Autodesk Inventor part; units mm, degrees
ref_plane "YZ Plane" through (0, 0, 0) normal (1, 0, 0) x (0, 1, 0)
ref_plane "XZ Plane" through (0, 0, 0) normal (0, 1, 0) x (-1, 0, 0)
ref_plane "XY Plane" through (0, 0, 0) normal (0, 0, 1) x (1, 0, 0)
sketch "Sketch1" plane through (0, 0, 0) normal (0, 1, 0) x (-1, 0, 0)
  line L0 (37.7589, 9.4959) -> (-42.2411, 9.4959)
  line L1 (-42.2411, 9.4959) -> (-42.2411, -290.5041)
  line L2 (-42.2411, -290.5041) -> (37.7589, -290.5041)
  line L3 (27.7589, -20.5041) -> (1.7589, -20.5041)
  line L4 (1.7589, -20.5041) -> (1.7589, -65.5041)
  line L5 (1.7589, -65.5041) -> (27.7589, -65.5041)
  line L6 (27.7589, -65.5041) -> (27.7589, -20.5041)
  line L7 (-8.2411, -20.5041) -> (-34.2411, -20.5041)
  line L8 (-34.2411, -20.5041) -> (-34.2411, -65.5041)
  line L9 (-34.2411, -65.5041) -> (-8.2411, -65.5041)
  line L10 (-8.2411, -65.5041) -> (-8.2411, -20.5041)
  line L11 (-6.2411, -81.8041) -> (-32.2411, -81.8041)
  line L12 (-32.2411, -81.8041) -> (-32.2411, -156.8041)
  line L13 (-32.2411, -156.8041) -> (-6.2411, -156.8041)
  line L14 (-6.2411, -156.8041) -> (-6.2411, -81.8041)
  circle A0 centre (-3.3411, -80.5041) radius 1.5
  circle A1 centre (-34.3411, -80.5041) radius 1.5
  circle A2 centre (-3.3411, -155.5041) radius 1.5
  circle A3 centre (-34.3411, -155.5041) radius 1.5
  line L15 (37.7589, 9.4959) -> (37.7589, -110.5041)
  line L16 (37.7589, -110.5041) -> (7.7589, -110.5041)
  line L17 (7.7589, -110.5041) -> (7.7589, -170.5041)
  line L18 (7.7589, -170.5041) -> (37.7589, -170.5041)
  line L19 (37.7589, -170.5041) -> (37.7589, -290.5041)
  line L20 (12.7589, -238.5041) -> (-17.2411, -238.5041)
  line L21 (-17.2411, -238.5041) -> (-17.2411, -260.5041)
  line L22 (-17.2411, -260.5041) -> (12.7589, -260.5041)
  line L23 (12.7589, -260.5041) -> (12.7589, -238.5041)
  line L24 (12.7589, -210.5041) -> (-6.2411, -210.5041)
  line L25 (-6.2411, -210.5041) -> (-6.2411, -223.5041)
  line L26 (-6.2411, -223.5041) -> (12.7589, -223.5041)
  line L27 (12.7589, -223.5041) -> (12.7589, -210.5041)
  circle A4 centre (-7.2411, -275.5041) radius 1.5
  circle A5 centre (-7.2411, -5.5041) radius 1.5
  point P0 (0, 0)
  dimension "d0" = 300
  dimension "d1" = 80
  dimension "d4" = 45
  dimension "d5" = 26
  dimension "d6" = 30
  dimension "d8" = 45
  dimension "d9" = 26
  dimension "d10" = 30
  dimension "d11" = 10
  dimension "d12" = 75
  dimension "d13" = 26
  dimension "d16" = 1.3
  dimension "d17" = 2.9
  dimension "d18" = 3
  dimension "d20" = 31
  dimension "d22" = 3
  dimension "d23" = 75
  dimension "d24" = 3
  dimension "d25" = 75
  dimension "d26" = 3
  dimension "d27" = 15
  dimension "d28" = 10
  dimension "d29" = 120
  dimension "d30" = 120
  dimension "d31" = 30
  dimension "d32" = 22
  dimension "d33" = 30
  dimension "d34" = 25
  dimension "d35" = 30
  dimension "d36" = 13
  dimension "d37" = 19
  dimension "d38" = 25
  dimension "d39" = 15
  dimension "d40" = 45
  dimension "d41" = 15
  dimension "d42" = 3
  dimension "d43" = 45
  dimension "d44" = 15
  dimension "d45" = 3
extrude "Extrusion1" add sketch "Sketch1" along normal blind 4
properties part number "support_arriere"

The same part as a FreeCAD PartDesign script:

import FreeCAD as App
import Part
import Sketcher

doc = App.newDocument("Part")
params = doc.addObject("Spreadsheet::Sheet", "Params")
for row, (alias, value) in enumerate([
    ("sketch1_diameter", "3 mm"),
    ("sketch1_width", "80 mm"),
    ("sketch1_width2", "30 mm"),
    ("sketch1_width3", "19 mm"),
    ("sketch1_width4", "26 mm"),
    ("pad1_length", "4 mm"),
], start=1):
    params.set(f"A{row}", alias)
    params.set(f"B{row}", "=" + value)
    params.setAlias(f"B{row}", alias)

body = doc.addObject("PartDesign::Body", "Body")

# Sketch on XZ plane
sketch1 = body.newObject("Sketcher::SketchObject", "Sketch")
sketch1.AttachmentSupport = (doc.getObject("XZ_Plane"), [""])
sketch1.MapMode = "FlatFace"
sketch1.addGeometry([
    Part.LineSegment(App.Vector(-37.8, -110.5, 0), App.Vector(-37.8, 9.5, 0)),  # 0
    Part.LineSegment(App.Vector(-37.8, 9.5, 0), App.Vector(42.2, 9.5, 0)),  # 1
    Part.LineSegment(App.Vector(42.2, 9.5, 0), App.Vector(42.2, -290.5, 0)),  # 2
    Part.LineSegment(App.Vector(42.2, -290.5, 0), App.Vector(-37.8, -290.5, 0)),  # 3
    Part.LineSegment(App.Vector(-37.8, -290.5, 0), App.Vector(-37.8, -170.5, 0)),  # 4
    Part.LineSegment(App.Vector(-37.8, -170.5, 0), App.Vector(-7.8, -170.5, 0)),  # 5
    Part.LineSegment(App.Vector(-7.8, -170.5, 0), App.Vector(-7.8, -110.5, 0)),  # 6
    Part.LineSegment(App.Vector(-7.8, -110.5, 0), App.Vector(-37.8, -110.5, 0)),  # 7
    Part.Circle(App.Vector(7.2, -275.5, 0), App.Vector(0, 0, 1), 1.5),  # 8
    Part.Circle(App.Vector(34.3, -155.5, 0), App.Vector(0, 0, 1), 1.5),  # 9
    Part.Circle(App.Vector(3.3, -155.5, 0), App.Vector(0, 0, 1), 1.5),  # 10
    Part.LineSegment(App.Vector(17.2, -238.5, 0), App.Vector(-12.8, -238.5, 0)),  # 11
    Part.LineSegment(App.Vector(-12.8, -238.5, 0), App.Vector(-12.8, -260.5, 0)),  # 12
    Part.LineSegment(App.Vector(-12.8, -260.5, 0), App.Vector(17.2, -260.5, 0)),  # 13
    Part.LineSegment(App.Vector(17.2, -260.5, 0), App.Vector(17.2, -238.5, 0)),  # 14
    Part.LineSegment(App.Vector(6.2, -210.5, 0), App.Vector(-12.8, -210.5, 0)),  # 15
    Part.LineSegment(App.Vector(-12.8, -210.5, 0), App.Vector(-12.8, -223.5, 0)),  # 16
    Part.LineSegment(App.Vector(-12.8, -223.5, 0), App.Vector(6.2, -223.5, 0)),  # 17
    Part.LineSegment(App.Vector(6.2, -223.5, 0), App.Vector(6.2, -210.5, 0)),  # 18
    Part.Circle(App.Vector(34.3, -80.5, 0), App.Vector(0, 0, 1), 1.5),  # 19
    Part.LineSegment(App.Vector(32.2, -81.8, 0), App.Vector(6.2, -81.8, 0)),  # 20
    Part.LineSegment(App.Vector(6.2, -81.8, 0), App.Vector(6.2, -156.8, 0)),  # 21
    Part.LineSegment(App.Vector(6.2, -156.8, 0), App.Vector(32.2, -156.8, 0)),  # 22
    Part.LineSegment(App.Vector(32.2, -156.8, 0), App.Vector(32.2, -81.8, 0)),  # 23
    Part.Circle(App.Vector(3.3, -80.5, 0), App.Vector(0, 0, 1), 1.5),  # 24
    Part.LineSegment(App.Vector(34.2, -20.5, 0), App.Vector(8.2, -20.5, 0)),  # 25
    Part.LineSegment(App.Vector(8.2, -20.5, 0), App.Vector(8.2, -65.5, 0)),  # 26
    Part.LineSegment(App.Vector(8.2, -65.5, 0), App.Vector(34.2, -65.5, 0)),  # 27
    Part.LineSegment(App.Vector(34.2, -65.5, 0), App.Vector(34.2, -20.5, 0)),  # 28
    Part.Circle(App.Vector(7.2, -5.5, 0), App.Vector(0, 0, 1), 1.5),  # 29
    Part.LineSegment(App.Vector(-1.8, -20.5, 0), App.Vector(-27.8, -20.5, 0)),  # 30
    Part.LineSegment(App.Vector(-27.8, -20.5, 0), App.Vector(-27.8, -65.5, 0)),  # 31
    Part.LineSegment(App.Vector(-27.8, -65.5, 0), App.Vector(-1.8, -65.5, 0)),  # 32
    Part.LineSegment(App.Vector(-1.8, -65.5, 0), App.Vector(-1.8, -20.5, 0)),  # 33
], False)
sketch1.addConstraint([
    Sketcher.Constraint("Coincident", 0, 2, 1, 1),
    Sketcher.Constraint("Coincident", 1, 2, 2, 1),
    Sketcher.Constraint("Coincident", 2, 2, 3, 1),
    Sketcher.Constraint("Coincident", 3, 2, 4, 1),
    Sketcher.Constraint("Coincident", 4, 2, 5, 1),
    Sketcher.Constraint("Coincident", 5, 2, 6, 1),
    Sketcher.Constraint("Coincident", 6, 2, 7, 1),
    Sketcher.Constraint("Coincident", 7, 2, 0, 1),
    Sketcher.Constraint("Coincident", 11, 2, 12, 1),
    Sketcher.Constraint("Coincident", 12, 2, 13, 1),
    Sketcher.Constraint("Coincident", 13, 2, 14, 1),
    Sketcher.Constraint("Coincident", 14, 2, 11, 1),
    Sketcher.Constraint("Coincident", 15, 2, 16, 1),
    Sketcher.Constraint("Coincident", 16, 2, 17, 1),
    Sketcher.Constraint("Coincident", 17, 2, 18, 1),
    Sketcher.Constraint("Coincident", 18, 2, 15, 1),
    Sketcher.Constraint("Coincident", 20, 2, 21, 1),
    Sketcher.Constraint("Coincident", 21, 2, 22, 1),
    Sketcher.Constraint("Coincident", 22, 2, 23, 1),
    Sketcher.Constraint("Coincident", 23, 2, 20, 1),
    Sketcher.Constraint("Coincident", 25, 2, 26, 1),
    Sketcher.Constraint("Coincident", 26, 2, 27, 1),
    Sketcher.Constraint("Coincident", 27, 2, 28, 1),
    Sketcher.Constraint("Coincident", 28, 2, 25, 1),
    Sketcher.Constraint("Coincident", 30, 2, 31, 1),
    Sketcher.Constraint("Coincident", 31, 2, 32, 1),
    Sketcher.Constraint("Coincident", 32, 2, 33, 1),
    Sketcher.Constraint("Coincident", 33, 2, 30, 1),
    Sketcher.Constraint("Vertical", 0),
    Sketcher.Constraint("Horizontal", 1),
    Sketcher.Constraint("Vertical", 2),
    Sketcher.Constraint("Horizontal", 3),
    Sketcher.Constraint("Vertical", 4),
    Sketcher.Constraint("Horizontal", 5),
    Sketcher.Constraint("Vertical", 6),
    Sketcher.Constraint("Horizontal", 7),
    Sketcher.Constraint("Horizontal", 11),
    Sketcher.Constraint("Vertical", 12),
    Sketcher.Constraint("Horizontal", 13),
    Sketcher.Constraint("Vertical", 14),
    Sketcher.Constraint("Horizontal", 15),
    Sketcher.Constraint("Vertical", 16),
    Sketcher.Constraint("Horizontal", 17),
    Sketcher.Constraint("Vertical", 18),
    Sketcher.Constraint("Horizontal", 20),
    Sketcher.Constraint("Vertical", 21),
    Sketcher.Constraint("Horizontal", 22),
    Sketcher.Constraint("Vertical", 23),
    Sketcher.Constraint("Horizontal", 25),
    Sketcher.Constraint("Vertical", 26),
    Sketcher.Constraint("Horizontal", 27),
    Sketcher.Constraint("Vertical", 28),
    Sketcher.Constraint("Horizontal", 30),
    Sketcher.Constraint("Vertical", 31),
    Sketcher.Constraint("Horizontal", 32),
    Sketcher.Constraint("Vertical", 33),
    Sketcher.Constraint("Equal", 8, 9),
    Sketcher.Constraint("Equal", 9, 10),
    Sketcher.Constraint("Equal", 10, 19),
    Sketcher.Constraint("Equal", 19, 24),
    Sketcher.Constraint("Equal", 24, 29),
    Sketcher.Constraint("Horizontal", 9, 3, 10, 3),
    Sketcher.Constraint("Horizontal", 19, 3, 24, 3),
    Sketcher.Constraint("Horizontal", 28, 2, 30, 2),
    Sketcher.Constraint("Horizontal", 27, 2, 31, 2),
    Sketcher.Constraint("Vertical", 9, 3, 19, 3),
    Sketcher.Constraint("Vertical", 10, 3, 24, 3),
    Sketcher.Constraint("Vertical", 8, 3, 29, 3),
    Sketcher.Constraint("Vertical", 0, 2, 3, 2),
    Sketcher.Constraint("Vertical", 12, 2, 15, 2),
    Sketcher.Constraint("Vertical", 18, 2, 20, 2),
    Sketcher.Constraint("Equal", 7, 11),
    Sketcher.Constraint("Equal", 22, 25),
    Sketcher.Constraint("Equal", 27, 30),
    Sketcher.Constraint("Equal", 0, 4),
    Sketcher.Constraint("Diameter", 8, 3.0),
    Sketcher.Constraint("DistanceX", 1, 1, 1, 2, 80.0),
    Sketcher.Constraint("DistanceX", 5, 1, 5, 2, 30.0),
    Sketcher.Constraint("DistanceX", 15, 2, 15, 1, 19.0),
    Sketcher.Constraint("DistanceX", 20, 2, 20, 1, 26.0),
    Sketcher.Constraint("DistanceY", 0, 1, 0, 2, 120.0),
    Sketcher.Constraint("DistanceY", 2, 2, 2, 1, 300.0),
    Sketcher.Constraint("DistanceY", 12, 2, 12, 1, 22.0),
    Sketcher.Constraint("DistanceY", 16, 2, 16, 1, 13.0),
    Sketcher.Constraint("DistanceY", 21, 2, 21, 1, 75.0),
    Sketcher.Constraint("DistanceY", 26, 2, 26, 1, 45.0),
    Sketcher.Constraint("DistanceY", 8, 3, 9, 3, 120.0),
    Sketcher.Constraint("DistanceX", 10, 3, 9, 3, 31.0),
    Sketcher.Constraint("DistanceY", 9, 3, 19, 3, 75.0),
    Sketcher.Constraint("DistanceY", 24, 3, 29, 3, 75.0),
    Sketcher.Constraint("DistanceX", 0, 2, 29, 3, 45.0),
    Sketcher.Constraint("DistanceY", 29, 3, 0, 2, 15.0),
    Sketcher.Constraint("DistanceX", 3, 2, 11, 2, 25.0),
    Sketcher.Constraint("DistanceY", 8, 3, 12, 2, 15.0),
    Sketcher.Constraint("DistanceY", 11, 2, 16, 2, 15.0),
    Sketcher.Constraint("DistanceY", 25, 2, 29, 3, 15.0),
    Sketcher.Constraint("DistanceX", 0, 2, 30, 2, 10.0),
    Sketcher.Constraint("DistanceX", 32, 2, 26, 2, 10.0),
    Sketcher.Constraint("DistanceX", 24, 3, 20, 2, 2.9),
    Sketcher.Constraint("DistanceY", 20, 2, 24, 3, 1.3),
    Sketcher.Constraint("DistanceX", -1, 1, 8, 3, 7.241),
    Sketcher.Constraint("DistanceY", 8, 3, -1, 1, 275.504),
])
sketch1.setExpression("Constraints[75]", "Params.sketch1_diameter")
sketch1.setExpression("Constraints[76]", "Params.sketch1_width")
sketch1.setExpression("Constraints[77]", "Params.sketch1_width2")
sketch1.setExpression("Constraints[78]", "Params.sketch1_width3")
sketch1.setExpression("Constraints[79]", "Params.sketch1_width4")
pad1 = body.newObject("PartDesign::Pad", "Pad")
pad1.Profile = sketch1
pad1.setExpression("Length", "Params.pad1_length")
pad1.Reversed = True

doc.recompute()
